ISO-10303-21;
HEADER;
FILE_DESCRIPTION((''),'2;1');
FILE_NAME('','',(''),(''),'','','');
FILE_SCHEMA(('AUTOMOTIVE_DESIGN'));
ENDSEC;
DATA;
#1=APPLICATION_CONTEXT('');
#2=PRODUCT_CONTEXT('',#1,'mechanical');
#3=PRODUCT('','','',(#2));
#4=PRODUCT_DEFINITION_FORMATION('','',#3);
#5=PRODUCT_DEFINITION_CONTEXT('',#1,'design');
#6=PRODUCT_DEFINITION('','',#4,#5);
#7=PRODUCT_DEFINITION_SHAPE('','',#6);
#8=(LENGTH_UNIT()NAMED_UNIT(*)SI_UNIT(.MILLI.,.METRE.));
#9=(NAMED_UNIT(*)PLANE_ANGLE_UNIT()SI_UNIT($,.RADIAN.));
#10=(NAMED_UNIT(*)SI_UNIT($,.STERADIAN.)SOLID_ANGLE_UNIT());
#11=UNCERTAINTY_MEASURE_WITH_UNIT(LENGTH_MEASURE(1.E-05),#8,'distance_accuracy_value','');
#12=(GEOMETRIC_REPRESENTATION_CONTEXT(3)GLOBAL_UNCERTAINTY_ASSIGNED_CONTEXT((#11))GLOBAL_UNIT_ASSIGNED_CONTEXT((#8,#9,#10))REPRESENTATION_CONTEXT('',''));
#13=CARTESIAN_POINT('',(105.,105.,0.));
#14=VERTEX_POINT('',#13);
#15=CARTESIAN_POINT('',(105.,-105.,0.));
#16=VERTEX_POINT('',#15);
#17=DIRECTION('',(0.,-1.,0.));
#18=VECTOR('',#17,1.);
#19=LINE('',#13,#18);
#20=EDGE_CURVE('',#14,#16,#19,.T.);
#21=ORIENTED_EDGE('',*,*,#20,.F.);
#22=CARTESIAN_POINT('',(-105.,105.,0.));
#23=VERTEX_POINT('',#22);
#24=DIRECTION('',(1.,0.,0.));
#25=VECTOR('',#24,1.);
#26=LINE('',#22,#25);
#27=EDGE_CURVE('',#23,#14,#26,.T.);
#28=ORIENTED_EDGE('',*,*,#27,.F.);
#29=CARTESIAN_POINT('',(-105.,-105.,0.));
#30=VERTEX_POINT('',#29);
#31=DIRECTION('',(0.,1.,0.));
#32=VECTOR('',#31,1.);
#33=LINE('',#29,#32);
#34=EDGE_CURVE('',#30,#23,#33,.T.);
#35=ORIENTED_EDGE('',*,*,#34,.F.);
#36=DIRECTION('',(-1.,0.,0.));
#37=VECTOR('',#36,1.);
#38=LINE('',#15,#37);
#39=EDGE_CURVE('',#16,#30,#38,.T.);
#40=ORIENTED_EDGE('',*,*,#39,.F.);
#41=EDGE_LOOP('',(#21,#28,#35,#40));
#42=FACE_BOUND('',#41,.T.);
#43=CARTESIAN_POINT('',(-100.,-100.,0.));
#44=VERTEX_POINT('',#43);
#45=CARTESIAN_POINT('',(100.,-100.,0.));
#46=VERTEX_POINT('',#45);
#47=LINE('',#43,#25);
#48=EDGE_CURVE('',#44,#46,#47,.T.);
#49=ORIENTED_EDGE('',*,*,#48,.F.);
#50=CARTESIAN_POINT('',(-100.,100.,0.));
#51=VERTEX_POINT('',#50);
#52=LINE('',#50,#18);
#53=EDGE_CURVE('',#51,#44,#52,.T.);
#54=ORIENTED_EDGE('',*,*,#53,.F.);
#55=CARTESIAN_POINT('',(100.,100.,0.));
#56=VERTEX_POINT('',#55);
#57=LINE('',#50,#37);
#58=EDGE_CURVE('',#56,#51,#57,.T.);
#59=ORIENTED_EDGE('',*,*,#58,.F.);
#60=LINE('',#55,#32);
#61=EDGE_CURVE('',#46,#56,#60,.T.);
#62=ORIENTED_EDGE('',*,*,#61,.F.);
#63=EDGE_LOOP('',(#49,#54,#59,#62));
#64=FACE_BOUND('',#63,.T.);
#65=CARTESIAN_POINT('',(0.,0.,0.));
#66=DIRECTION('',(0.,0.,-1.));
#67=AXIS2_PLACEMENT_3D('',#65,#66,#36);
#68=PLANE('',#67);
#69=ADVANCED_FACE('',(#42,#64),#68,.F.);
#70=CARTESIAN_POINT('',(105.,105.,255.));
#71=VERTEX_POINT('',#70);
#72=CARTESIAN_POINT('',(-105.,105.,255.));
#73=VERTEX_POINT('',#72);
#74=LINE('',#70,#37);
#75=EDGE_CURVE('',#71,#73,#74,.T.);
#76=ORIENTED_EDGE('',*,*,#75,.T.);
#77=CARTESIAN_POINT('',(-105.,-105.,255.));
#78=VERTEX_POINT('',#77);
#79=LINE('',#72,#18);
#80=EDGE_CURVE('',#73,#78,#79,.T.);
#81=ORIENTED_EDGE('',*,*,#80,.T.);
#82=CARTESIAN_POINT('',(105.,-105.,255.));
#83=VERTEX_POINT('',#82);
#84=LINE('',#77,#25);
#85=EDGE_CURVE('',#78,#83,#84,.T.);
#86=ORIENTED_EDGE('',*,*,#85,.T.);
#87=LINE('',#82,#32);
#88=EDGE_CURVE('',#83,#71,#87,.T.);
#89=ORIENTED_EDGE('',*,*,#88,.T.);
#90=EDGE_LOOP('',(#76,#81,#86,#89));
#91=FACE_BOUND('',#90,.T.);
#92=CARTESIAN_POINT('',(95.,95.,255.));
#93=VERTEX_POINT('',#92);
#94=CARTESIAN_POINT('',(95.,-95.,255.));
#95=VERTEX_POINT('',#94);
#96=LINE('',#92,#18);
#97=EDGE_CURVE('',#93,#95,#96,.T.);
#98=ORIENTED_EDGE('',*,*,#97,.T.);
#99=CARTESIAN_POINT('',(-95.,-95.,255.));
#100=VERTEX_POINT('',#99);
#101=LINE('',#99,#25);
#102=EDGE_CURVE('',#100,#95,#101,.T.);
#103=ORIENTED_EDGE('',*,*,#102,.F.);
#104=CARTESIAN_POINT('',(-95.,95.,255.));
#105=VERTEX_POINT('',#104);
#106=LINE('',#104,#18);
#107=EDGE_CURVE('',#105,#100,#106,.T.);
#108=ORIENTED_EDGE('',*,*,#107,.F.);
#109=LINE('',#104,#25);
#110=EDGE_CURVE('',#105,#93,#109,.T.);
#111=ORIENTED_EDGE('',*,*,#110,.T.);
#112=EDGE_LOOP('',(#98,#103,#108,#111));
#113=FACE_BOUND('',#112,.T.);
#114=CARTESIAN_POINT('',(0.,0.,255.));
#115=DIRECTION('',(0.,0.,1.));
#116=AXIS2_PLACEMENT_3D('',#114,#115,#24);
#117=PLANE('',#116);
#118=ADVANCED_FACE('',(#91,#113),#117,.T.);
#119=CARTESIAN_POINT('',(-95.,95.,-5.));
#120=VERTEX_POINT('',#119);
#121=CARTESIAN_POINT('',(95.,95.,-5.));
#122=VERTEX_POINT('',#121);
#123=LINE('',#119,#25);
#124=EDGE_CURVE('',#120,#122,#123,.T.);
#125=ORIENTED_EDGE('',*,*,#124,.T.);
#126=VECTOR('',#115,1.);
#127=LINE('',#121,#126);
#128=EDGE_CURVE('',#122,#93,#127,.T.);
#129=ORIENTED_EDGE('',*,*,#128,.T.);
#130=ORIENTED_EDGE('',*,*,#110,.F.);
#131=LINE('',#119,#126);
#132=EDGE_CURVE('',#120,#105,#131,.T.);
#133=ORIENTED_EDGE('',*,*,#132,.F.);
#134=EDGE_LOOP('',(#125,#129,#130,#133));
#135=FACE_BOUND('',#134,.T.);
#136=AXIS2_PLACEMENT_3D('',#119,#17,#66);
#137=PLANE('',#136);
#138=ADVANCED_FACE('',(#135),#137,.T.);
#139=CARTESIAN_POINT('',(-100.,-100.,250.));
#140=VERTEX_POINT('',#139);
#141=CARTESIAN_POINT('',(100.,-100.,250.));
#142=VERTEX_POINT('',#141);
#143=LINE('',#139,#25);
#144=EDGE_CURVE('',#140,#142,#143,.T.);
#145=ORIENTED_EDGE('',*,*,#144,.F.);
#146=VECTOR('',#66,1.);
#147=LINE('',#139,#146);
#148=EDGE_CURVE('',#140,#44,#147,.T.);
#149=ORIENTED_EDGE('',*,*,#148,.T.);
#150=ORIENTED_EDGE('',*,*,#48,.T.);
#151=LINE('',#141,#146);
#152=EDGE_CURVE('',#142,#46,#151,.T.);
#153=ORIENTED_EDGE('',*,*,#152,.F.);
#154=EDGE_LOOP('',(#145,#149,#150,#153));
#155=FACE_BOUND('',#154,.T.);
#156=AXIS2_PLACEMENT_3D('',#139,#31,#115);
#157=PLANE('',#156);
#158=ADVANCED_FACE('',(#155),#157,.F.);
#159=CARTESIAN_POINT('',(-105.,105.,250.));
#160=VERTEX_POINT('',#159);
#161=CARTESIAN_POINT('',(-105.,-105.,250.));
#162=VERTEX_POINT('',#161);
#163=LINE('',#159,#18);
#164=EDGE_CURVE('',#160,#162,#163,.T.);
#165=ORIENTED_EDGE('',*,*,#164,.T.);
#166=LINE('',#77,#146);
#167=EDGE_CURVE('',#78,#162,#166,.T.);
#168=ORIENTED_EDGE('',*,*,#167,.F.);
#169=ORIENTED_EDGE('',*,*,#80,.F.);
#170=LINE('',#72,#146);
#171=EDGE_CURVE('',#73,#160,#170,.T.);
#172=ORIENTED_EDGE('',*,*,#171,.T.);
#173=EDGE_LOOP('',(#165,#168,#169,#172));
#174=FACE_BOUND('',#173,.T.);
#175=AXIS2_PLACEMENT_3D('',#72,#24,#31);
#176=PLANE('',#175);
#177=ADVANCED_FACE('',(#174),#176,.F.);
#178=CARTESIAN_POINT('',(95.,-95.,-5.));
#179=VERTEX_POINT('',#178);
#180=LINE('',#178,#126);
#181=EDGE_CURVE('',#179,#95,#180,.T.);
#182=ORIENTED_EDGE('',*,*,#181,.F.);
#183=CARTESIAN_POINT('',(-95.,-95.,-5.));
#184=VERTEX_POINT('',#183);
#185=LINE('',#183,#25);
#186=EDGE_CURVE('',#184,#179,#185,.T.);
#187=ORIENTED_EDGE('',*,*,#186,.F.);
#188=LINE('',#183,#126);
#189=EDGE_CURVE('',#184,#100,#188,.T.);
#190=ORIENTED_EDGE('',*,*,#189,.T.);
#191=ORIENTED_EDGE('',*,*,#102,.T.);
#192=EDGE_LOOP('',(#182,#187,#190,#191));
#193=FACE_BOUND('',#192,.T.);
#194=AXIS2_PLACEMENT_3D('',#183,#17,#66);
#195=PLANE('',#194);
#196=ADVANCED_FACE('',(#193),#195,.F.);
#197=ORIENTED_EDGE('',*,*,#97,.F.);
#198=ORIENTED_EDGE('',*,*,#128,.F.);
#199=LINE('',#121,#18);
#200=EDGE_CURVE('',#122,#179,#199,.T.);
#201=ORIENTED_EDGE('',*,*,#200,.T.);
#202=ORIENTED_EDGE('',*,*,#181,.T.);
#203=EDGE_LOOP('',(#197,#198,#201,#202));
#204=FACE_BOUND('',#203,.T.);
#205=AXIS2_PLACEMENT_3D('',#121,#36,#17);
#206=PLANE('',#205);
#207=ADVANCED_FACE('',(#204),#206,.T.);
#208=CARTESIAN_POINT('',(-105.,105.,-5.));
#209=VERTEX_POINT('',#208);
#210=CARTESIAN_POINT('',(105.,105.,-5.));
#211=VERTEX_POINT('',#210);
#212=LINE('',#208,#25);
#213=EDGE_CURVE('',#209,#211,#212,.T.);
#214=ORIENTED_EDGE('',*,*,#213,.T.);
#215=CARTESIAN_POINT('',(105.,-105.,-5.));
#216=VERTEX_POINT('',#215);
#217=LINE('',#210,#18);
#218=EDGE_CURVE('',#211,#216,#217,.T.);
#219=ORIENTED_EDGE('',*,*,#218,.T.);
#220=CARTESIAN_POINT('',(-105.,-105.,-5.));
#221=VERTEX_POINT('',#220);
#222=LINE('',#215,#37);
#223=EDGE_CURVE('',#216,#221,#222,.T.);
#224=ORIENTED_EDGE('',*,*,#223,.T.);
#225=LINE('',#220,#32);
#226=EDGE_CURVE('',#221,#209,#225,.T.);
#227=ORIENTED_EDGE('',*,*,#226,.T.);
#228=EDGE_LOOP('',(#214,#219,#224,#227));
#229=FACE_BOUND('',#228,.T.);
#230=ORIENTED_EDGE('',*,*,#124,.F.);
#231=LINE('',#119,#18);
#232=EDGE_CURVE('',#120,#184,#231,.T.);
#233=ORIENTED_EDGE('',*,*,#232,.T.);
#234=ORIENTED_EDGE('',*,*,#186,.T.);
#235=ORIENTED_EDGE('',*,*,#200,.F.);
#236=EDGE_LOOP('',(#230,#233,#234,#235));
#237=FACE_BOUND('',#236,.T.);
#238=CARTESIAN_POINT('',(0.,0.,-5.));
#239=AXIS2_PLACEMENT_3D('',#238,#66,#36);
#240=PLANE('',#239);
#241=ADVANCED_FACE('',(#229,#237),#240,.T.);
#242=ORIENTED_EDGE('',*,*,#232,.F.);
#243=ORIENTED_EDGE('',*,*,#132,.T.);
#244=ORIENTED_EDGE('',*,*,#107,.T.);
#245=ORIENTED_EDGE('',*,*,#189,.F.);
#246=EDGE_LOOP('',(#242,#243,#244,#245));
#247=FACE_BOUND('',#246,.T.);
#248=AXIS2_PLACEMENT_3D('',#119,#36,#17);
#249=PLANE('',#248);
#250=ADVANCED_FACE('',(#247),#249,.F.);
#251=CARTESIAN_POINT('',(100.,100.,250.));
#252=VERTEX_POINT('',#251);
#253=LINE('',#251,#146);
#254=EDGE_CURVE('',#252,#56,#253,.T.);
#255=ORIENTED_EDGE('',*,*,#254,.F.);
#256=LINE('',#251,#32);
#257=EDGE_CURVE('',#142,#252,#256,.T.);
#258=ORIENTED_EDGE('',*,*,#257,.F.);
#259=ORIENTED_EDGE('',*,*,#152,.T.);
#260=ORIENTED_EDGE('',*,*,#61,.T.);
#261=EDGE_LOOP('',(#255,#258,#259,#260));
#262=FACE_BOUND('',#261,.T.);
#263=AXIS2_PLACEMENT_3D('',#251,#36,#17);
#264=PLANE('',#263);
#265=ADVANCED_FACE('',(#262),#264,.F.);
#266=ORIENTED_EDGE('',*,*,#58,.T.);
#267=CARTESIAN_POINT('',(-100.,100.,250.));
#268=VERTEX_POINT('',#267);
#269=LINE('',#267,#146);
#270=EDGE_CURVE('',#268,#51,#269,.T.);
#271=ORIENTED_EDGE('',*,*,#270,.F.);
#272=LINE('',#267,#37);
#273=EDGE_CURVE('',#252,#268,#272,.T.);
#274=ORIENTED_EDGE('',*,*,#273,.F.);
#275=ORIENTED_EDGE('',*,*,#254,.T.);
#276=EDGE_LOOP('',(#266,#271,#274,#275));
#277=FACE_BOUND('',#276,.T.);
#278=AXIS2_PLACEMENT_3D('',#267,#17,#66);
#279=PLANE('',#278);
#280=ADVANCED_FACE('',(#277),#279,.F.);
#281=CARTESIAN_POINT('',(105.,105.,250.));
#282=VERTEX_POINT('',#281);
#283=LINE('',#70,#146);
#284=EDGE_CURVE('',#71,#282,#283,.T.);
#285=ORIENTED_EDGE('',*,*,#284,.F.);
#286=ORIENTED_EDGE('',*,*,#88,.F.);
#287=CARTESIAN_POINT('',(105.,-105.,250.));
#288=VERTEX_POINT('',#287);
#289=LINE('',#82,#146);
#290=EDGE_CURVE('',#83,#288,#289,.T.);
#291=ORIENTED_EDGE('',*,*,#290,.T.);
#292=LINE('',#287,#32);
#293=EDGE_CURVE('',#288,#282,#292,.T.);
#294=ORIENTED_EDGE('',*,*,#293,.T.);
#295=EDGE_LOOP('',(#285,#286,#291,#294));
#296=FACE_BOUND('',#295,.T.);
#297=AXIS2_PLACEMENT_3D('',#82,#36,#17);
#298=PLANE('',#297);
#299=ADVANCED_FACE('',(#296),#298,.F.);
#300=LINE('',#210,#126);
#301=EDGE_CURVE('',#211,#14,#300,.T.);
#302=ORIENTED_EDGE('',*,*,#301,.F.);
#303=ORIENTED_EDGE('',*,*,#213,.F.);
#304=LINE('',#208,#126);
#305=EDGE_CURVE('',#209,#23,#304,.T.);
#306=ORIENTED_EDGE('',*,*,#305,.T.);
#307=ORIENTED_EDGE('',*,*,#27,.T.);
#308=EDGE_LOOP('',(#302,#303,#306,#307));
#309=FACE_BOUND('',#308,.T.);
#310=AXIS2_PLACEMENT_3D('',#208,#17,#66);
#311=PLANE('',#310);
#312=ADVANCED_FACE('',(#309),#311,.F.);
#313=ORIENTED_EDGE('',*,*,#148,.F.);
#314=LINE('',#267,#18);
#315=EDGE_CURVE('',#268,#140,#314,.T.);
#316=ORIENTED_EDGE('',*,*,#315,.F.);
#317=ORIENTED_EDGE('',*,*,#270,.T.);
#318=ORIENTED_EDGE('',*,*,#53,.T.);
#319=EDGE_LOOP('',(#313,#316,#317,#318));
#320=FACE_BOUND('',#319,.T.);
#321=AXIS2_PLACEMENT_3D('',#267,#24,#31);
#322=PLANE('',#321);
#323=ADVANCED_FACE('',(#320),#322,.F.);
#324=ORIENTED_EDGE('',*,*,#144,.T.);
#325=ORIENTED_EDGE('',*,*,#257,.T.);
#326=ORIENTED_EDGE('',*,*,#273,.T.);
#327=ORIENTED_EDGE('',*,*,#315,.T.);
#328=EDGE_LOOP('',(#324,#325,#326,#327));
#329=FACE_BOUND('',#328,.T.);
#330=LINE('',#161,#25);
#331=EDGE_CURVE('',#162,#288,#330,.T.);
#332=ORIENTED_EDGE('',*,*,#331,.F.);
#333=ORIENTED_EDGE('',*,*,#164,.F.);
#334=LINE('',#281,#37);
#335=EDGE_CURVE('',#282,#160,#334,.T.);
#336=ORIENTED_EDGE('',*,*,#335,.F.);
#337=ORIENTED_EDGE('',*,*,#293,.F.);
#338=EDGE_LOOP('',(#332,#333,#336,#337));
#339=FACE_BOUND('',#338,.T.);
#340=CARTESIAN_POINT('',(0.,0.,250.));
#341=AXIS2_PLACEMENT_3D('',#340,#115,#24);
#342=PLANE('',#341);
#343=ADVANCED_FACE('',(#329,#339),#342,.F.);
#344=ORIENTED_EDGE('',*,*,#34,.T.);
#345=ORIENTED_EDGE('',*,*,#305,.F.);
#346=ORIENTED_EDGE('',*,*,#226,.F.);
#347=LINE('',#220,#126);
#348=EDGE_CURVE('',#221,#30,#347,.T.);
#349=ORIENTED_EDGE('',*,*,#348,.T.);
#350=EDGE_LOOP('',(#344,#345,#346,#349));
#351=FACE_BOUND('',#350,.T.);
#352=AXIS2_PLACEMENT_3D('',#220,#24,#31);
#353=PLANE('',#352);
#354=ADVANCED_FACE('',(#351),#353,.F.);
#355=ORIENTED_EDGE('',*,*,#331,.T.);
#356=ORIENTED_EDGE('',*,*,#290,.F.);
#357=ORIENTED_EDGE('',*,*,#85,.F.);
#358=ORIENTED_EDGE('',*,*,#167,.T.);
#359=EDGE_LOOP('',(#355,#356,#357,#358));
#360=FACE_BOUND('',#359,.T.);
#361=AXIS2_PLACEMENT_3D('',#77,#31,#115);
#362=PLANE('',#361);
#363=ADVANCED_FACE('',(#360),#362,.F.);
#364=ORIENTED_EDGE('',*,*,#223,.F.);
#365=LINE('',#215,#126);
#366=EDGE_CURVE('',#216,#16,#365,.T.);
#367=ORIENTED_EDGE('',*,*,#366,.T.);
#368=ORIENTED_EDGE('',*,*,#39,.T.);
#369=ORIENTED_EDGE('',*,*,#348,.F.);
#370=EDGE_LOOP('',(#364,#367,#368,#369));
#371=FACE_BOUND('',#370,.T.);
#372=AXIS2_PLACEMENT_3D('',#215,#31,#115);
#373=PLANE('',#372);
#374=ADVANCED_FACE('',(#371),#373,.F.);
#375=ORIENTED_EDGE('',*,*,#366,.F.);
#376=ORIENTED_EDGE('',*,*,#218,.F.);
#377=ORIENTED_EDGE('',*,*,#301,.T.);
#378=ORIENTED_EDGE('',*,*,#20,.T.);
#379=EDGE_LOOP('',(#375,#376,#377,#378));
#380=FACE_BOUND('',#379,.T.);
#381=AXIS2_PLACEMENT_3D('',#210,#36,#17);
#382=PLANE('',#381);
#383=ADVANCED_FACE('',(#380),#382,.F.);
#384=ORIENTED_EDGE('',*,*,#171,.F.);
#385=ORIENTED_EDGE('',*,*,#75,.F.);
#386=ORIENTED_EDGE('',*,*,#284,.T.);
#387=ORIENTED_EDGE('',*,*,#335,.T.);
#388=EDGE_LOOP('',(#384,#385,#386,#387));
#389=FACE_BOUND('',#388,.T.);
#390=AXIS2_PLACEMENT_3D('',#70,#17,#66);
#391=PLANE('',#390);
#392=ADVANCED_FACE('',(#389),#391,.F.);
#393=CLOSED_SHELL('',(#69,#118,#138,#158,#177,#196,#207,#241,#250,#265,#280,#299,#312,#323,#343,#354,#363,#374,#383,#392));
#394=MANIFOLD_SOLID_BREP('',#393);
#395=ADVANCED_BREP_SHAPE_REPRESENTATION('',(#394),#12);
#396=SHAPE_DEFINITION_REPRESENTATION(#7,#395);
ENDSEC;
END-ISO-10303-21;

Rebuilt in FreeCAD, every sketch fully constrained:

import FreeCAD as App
import Part
import Sketcher
from FreeCAD import Vector
Q = App.Units.Quantity

doc = App.newDocument("Part")
params = doc.addObject("Spreadsheet::Sheet", "Params")
for row, (alias, value) in enumerate([
    ("sketch1_width", "200 mm"),
    ("pad1_length", "250 mm"),
    ("sketch2_width", "210 mm"),
    ("pad2_length", "5 mm"),
    ("sketch3_width", "210 mm"),
    ("pad3_length", "5 mm"),
    ("sketch4_width", "190 mm"),
], start=1):
    params.set(f"A{row}", alias)
    params.set(f"B{row}", "=" + value)
    params.setAlias(f"B{row}", alias)

body = doc.addObject("PartDesign::Body", "Body")

# Sketch on XY plane
sketch1 = doc.addObject("Sketcher::SketchObject", "Sketch")
body.addObject(sketch1)
sketch1.AttachmentSupport = (doc.XY_Plane, [""])
sketch1.MapMode = "FlatFace"
sketch1.addGeometry([
    Part.LineSegment(Vector(-100, 100, 0), Vector(-100, -100, 0)),
    Part.LineSegment(Vector(-100, -100, 0), Vector(100, -100, 0)),
    Part.LineSegment(Vector(100, -100, 0), Vector(100, 100, 0)),
    Part.LineSegment(Vector(100, 100, 0), Vector(-100, 100, 0)),
], False)
sketch1.addConstraint([
    Sketcher.Constraint("Coincident", 0, 2, 1, 1),
    Sketcher.Constraint("Coincident", 1, 2, 2, 1),
    Sketcher.Constraint("Coincident", 2, 2, 3, 1),
    Sketcher.Constraint("Coincident", 3, 2, 0, 1),
    Sketcher.Constraint("Vertical", 0),
    Sketcher.Constraint("Horizontal", 1),
    Sketcher.Constraint("Vertical", 2),
    Sketcher.Constraint("Horizontal", 3),
    Sketcher.Constraint("Symmetric", 0, 2, 2, 2, -1, 1),
    Sketcher.Constraint("Equal", 3, 0),
    Sketcher.Constraint("DistanceX", 1, 1, 1, 2, Q("200 mm")),
])
sketch1.setExpression("Constraints[10]", "Params.sketch1_width")
pad1 = doc.addObject("PartDesign::Pad", "Pad")
body.addObject(pad1)
pad1.Profile = sketch1
pad1.setExpression("Length", "Params.pad1_length")

# Sketch on XY plane
sketch2 = doc.addObject("Sketcher::SketchObject", "Sketch001")
body.addObject(sketch2)
sketch2.AttachmentSupport = (doc.XY_Plane, [""])
sketch2.MapMode = "FlatFace"
sketch2.AttachmentOffset = App.Placement(Vector(0, 0, 250), App.Rotation())
sketch2.addGeometry([
    Part.LineSegment(Vector(-105, 105, 0), Vector(-105, -105, 0)),
    Part.LineSegment(Vector(-105, -105, 0), Vector(105, -105, 0)),
    Part.LineSegment(Vector(105, -105, 0), Vector(105, 105, 0)),
    Part.LineSegment(Vector(105, 105, 0), Vector(-105, 105, 0)),
], False)
sketch2.addConstraint([
    Sketcher.Constraint("Coincident", 0, 2, 1, 1),
    Sketcher.Constraint("Coincident", 1, 2, 2, 1),
    Sketcher.Constraint("Coincident", 2, 2, 3, 1),
    Sketcher.Constraint("Coincident", 3, 2, 0, 1),
    Sketcher.Constraint("Vertical", 0),
    Sketcher.Constraint("Horizontal", 1),
    Sketcher.Constraint("Vertical", 2),
    Sketcher.Constraint("Horizontal", 3),
    Sketcher.Constraint("Symmetric", 0, 2, 2, 2, -1, 1),
    Sketcher.Constraint("Equal", 3, 0),
    Sketcher.Constraint("DistanceX", 1, 1, 1, 2, Q("210 mm")),
])
sketch2.setExpression("Constraints[10]", "Params.sketch2_width")
pad2 = doc.addObject("PartDesign::Pad", "Pad001")
body.addObject(pad2)
pad2.Profile = sketch2
pad2.setExpression("Length", "Params.pad2_length")

# Sketch on XY plane
sketch3 = doc.addObject("Sketcher::SketchObject", "Sketch002")
body.addObject(sketch3)
sketch3.AttachmentSupport = (doc.XY_Plane, [""])
sketch3.MapMode = "FlatFace"
sketch3.addGeometry([
    Part.LineSegment(Vector(105, 105, 0), Vector(105, -105, 0)),
    Part.LineSegment(Vector(105, -105, 0), Vector(-105, -105, 0)),
    Part.LineSegment(Vector(-105, -105, 0), Vector(-105, 105, 0)),
    Part.LineSegment(Vector(-105, 105, 0), Vector(105, 105, 0)),
], False)
sketch3.addConstraint([
    Sketcher.Constraint("Coincident", 0, 2, 1, 1),
    Sketcher.Constraint("Coincident", 1, 2, 2, 1),
    Sketcher.Constraint("Coincident", 2, 2, 3, 1),
    Sketcher.Constraint("Coincident", 3, 2, 0, 1),
    Sketcher.Constraint("Vertical", 0),
    Sketcher.Constraint("Horizontal", 1),
    Sketcher.Constraint("Vertical", 2),
    Sketcher.Constraint("Horizontal", 3),
    Sketcher.Constraint("Symmetric", 0, 2, 2, 2, -1, 1),
    Sketcher.Constraint("Equal", 3, 0),
    Sketcher.Constraint("DistanceX", 1, 2, 1, 1, Q("210 mm")),
])
sketch3.setExpression("Constraints[10]", "Params.sketch3_width")
pad3 = doc.addObject("PartDesign::Pad", "Pad002")
body.addObject(pad3)
pad3.Profile = sketch3
pad3.setExpression("Length", "Params.pad3_length")
pad3.Reversed = True

# Sketch on XY plane
sketch4 = doc.addObject("Sketcher::SketchObject", "Sketch003")
body.addObject(sketch4)
sketch4.AttachmentSupport = (doc.XY_Plane, [""])
sketch4.MapMode = "FlatFace"
sketch4.AttachmentOffset = App.Placement(Vector(0, 0, 255), App.Rotation())
sketch4.addGeometry([
    Part.LineSegment(Vector(-95, 95, 0), Vector(-95, -95, 0)),
    Part.LineSegment(Vector(-95, -95, 0), Vector(95, -95, 0)),
    Part.LineSegment(Vector(95, -95, 0), Vector(95, 95, 0)),
    Part.LineSegment(Vector(95, 95, 0), Vector(-95, 95, 0)),
], False)
sketch4.addConstraint([
    Sketcher.Constraint("Coincident", 0, 2, 1, 1),
    Sketcher.Constraint("Coincident", 1, 2, 2, 1),
    Sketcher.Constraint("Coincident", 2, 2, 3, 1),
    Sketcher.Constraint("Coincident", 3, 2, 0, 1),
    Sketcher.Constraint("Vertical", 0),
    Sketcher.Constraint("Horizontal", 1),
    Sketcher.Constraint("Vertical", 2),
    Sketcher.Constraint("Horizontal", 3),
    Sketcher.Constraint("Symmetric", 0, 2, 2, 2, -1, 1),
    Sketcher.Constraint("Equal", 3, 0),
    Sketcher.Constraint("DistanceX", 1, 1, 1, 2, Q("190 mm")),
])
sketch4.setExpression("Constraints[10]", "Params.sketch4_width")
pocket1 = doc.addObject("PartDesign::Pocket", "Pocket")
body.addObject(pocket1)
pocket1.Profile = sketch4
pocket1.Type = "ThroughAll"

doc.recompute()
